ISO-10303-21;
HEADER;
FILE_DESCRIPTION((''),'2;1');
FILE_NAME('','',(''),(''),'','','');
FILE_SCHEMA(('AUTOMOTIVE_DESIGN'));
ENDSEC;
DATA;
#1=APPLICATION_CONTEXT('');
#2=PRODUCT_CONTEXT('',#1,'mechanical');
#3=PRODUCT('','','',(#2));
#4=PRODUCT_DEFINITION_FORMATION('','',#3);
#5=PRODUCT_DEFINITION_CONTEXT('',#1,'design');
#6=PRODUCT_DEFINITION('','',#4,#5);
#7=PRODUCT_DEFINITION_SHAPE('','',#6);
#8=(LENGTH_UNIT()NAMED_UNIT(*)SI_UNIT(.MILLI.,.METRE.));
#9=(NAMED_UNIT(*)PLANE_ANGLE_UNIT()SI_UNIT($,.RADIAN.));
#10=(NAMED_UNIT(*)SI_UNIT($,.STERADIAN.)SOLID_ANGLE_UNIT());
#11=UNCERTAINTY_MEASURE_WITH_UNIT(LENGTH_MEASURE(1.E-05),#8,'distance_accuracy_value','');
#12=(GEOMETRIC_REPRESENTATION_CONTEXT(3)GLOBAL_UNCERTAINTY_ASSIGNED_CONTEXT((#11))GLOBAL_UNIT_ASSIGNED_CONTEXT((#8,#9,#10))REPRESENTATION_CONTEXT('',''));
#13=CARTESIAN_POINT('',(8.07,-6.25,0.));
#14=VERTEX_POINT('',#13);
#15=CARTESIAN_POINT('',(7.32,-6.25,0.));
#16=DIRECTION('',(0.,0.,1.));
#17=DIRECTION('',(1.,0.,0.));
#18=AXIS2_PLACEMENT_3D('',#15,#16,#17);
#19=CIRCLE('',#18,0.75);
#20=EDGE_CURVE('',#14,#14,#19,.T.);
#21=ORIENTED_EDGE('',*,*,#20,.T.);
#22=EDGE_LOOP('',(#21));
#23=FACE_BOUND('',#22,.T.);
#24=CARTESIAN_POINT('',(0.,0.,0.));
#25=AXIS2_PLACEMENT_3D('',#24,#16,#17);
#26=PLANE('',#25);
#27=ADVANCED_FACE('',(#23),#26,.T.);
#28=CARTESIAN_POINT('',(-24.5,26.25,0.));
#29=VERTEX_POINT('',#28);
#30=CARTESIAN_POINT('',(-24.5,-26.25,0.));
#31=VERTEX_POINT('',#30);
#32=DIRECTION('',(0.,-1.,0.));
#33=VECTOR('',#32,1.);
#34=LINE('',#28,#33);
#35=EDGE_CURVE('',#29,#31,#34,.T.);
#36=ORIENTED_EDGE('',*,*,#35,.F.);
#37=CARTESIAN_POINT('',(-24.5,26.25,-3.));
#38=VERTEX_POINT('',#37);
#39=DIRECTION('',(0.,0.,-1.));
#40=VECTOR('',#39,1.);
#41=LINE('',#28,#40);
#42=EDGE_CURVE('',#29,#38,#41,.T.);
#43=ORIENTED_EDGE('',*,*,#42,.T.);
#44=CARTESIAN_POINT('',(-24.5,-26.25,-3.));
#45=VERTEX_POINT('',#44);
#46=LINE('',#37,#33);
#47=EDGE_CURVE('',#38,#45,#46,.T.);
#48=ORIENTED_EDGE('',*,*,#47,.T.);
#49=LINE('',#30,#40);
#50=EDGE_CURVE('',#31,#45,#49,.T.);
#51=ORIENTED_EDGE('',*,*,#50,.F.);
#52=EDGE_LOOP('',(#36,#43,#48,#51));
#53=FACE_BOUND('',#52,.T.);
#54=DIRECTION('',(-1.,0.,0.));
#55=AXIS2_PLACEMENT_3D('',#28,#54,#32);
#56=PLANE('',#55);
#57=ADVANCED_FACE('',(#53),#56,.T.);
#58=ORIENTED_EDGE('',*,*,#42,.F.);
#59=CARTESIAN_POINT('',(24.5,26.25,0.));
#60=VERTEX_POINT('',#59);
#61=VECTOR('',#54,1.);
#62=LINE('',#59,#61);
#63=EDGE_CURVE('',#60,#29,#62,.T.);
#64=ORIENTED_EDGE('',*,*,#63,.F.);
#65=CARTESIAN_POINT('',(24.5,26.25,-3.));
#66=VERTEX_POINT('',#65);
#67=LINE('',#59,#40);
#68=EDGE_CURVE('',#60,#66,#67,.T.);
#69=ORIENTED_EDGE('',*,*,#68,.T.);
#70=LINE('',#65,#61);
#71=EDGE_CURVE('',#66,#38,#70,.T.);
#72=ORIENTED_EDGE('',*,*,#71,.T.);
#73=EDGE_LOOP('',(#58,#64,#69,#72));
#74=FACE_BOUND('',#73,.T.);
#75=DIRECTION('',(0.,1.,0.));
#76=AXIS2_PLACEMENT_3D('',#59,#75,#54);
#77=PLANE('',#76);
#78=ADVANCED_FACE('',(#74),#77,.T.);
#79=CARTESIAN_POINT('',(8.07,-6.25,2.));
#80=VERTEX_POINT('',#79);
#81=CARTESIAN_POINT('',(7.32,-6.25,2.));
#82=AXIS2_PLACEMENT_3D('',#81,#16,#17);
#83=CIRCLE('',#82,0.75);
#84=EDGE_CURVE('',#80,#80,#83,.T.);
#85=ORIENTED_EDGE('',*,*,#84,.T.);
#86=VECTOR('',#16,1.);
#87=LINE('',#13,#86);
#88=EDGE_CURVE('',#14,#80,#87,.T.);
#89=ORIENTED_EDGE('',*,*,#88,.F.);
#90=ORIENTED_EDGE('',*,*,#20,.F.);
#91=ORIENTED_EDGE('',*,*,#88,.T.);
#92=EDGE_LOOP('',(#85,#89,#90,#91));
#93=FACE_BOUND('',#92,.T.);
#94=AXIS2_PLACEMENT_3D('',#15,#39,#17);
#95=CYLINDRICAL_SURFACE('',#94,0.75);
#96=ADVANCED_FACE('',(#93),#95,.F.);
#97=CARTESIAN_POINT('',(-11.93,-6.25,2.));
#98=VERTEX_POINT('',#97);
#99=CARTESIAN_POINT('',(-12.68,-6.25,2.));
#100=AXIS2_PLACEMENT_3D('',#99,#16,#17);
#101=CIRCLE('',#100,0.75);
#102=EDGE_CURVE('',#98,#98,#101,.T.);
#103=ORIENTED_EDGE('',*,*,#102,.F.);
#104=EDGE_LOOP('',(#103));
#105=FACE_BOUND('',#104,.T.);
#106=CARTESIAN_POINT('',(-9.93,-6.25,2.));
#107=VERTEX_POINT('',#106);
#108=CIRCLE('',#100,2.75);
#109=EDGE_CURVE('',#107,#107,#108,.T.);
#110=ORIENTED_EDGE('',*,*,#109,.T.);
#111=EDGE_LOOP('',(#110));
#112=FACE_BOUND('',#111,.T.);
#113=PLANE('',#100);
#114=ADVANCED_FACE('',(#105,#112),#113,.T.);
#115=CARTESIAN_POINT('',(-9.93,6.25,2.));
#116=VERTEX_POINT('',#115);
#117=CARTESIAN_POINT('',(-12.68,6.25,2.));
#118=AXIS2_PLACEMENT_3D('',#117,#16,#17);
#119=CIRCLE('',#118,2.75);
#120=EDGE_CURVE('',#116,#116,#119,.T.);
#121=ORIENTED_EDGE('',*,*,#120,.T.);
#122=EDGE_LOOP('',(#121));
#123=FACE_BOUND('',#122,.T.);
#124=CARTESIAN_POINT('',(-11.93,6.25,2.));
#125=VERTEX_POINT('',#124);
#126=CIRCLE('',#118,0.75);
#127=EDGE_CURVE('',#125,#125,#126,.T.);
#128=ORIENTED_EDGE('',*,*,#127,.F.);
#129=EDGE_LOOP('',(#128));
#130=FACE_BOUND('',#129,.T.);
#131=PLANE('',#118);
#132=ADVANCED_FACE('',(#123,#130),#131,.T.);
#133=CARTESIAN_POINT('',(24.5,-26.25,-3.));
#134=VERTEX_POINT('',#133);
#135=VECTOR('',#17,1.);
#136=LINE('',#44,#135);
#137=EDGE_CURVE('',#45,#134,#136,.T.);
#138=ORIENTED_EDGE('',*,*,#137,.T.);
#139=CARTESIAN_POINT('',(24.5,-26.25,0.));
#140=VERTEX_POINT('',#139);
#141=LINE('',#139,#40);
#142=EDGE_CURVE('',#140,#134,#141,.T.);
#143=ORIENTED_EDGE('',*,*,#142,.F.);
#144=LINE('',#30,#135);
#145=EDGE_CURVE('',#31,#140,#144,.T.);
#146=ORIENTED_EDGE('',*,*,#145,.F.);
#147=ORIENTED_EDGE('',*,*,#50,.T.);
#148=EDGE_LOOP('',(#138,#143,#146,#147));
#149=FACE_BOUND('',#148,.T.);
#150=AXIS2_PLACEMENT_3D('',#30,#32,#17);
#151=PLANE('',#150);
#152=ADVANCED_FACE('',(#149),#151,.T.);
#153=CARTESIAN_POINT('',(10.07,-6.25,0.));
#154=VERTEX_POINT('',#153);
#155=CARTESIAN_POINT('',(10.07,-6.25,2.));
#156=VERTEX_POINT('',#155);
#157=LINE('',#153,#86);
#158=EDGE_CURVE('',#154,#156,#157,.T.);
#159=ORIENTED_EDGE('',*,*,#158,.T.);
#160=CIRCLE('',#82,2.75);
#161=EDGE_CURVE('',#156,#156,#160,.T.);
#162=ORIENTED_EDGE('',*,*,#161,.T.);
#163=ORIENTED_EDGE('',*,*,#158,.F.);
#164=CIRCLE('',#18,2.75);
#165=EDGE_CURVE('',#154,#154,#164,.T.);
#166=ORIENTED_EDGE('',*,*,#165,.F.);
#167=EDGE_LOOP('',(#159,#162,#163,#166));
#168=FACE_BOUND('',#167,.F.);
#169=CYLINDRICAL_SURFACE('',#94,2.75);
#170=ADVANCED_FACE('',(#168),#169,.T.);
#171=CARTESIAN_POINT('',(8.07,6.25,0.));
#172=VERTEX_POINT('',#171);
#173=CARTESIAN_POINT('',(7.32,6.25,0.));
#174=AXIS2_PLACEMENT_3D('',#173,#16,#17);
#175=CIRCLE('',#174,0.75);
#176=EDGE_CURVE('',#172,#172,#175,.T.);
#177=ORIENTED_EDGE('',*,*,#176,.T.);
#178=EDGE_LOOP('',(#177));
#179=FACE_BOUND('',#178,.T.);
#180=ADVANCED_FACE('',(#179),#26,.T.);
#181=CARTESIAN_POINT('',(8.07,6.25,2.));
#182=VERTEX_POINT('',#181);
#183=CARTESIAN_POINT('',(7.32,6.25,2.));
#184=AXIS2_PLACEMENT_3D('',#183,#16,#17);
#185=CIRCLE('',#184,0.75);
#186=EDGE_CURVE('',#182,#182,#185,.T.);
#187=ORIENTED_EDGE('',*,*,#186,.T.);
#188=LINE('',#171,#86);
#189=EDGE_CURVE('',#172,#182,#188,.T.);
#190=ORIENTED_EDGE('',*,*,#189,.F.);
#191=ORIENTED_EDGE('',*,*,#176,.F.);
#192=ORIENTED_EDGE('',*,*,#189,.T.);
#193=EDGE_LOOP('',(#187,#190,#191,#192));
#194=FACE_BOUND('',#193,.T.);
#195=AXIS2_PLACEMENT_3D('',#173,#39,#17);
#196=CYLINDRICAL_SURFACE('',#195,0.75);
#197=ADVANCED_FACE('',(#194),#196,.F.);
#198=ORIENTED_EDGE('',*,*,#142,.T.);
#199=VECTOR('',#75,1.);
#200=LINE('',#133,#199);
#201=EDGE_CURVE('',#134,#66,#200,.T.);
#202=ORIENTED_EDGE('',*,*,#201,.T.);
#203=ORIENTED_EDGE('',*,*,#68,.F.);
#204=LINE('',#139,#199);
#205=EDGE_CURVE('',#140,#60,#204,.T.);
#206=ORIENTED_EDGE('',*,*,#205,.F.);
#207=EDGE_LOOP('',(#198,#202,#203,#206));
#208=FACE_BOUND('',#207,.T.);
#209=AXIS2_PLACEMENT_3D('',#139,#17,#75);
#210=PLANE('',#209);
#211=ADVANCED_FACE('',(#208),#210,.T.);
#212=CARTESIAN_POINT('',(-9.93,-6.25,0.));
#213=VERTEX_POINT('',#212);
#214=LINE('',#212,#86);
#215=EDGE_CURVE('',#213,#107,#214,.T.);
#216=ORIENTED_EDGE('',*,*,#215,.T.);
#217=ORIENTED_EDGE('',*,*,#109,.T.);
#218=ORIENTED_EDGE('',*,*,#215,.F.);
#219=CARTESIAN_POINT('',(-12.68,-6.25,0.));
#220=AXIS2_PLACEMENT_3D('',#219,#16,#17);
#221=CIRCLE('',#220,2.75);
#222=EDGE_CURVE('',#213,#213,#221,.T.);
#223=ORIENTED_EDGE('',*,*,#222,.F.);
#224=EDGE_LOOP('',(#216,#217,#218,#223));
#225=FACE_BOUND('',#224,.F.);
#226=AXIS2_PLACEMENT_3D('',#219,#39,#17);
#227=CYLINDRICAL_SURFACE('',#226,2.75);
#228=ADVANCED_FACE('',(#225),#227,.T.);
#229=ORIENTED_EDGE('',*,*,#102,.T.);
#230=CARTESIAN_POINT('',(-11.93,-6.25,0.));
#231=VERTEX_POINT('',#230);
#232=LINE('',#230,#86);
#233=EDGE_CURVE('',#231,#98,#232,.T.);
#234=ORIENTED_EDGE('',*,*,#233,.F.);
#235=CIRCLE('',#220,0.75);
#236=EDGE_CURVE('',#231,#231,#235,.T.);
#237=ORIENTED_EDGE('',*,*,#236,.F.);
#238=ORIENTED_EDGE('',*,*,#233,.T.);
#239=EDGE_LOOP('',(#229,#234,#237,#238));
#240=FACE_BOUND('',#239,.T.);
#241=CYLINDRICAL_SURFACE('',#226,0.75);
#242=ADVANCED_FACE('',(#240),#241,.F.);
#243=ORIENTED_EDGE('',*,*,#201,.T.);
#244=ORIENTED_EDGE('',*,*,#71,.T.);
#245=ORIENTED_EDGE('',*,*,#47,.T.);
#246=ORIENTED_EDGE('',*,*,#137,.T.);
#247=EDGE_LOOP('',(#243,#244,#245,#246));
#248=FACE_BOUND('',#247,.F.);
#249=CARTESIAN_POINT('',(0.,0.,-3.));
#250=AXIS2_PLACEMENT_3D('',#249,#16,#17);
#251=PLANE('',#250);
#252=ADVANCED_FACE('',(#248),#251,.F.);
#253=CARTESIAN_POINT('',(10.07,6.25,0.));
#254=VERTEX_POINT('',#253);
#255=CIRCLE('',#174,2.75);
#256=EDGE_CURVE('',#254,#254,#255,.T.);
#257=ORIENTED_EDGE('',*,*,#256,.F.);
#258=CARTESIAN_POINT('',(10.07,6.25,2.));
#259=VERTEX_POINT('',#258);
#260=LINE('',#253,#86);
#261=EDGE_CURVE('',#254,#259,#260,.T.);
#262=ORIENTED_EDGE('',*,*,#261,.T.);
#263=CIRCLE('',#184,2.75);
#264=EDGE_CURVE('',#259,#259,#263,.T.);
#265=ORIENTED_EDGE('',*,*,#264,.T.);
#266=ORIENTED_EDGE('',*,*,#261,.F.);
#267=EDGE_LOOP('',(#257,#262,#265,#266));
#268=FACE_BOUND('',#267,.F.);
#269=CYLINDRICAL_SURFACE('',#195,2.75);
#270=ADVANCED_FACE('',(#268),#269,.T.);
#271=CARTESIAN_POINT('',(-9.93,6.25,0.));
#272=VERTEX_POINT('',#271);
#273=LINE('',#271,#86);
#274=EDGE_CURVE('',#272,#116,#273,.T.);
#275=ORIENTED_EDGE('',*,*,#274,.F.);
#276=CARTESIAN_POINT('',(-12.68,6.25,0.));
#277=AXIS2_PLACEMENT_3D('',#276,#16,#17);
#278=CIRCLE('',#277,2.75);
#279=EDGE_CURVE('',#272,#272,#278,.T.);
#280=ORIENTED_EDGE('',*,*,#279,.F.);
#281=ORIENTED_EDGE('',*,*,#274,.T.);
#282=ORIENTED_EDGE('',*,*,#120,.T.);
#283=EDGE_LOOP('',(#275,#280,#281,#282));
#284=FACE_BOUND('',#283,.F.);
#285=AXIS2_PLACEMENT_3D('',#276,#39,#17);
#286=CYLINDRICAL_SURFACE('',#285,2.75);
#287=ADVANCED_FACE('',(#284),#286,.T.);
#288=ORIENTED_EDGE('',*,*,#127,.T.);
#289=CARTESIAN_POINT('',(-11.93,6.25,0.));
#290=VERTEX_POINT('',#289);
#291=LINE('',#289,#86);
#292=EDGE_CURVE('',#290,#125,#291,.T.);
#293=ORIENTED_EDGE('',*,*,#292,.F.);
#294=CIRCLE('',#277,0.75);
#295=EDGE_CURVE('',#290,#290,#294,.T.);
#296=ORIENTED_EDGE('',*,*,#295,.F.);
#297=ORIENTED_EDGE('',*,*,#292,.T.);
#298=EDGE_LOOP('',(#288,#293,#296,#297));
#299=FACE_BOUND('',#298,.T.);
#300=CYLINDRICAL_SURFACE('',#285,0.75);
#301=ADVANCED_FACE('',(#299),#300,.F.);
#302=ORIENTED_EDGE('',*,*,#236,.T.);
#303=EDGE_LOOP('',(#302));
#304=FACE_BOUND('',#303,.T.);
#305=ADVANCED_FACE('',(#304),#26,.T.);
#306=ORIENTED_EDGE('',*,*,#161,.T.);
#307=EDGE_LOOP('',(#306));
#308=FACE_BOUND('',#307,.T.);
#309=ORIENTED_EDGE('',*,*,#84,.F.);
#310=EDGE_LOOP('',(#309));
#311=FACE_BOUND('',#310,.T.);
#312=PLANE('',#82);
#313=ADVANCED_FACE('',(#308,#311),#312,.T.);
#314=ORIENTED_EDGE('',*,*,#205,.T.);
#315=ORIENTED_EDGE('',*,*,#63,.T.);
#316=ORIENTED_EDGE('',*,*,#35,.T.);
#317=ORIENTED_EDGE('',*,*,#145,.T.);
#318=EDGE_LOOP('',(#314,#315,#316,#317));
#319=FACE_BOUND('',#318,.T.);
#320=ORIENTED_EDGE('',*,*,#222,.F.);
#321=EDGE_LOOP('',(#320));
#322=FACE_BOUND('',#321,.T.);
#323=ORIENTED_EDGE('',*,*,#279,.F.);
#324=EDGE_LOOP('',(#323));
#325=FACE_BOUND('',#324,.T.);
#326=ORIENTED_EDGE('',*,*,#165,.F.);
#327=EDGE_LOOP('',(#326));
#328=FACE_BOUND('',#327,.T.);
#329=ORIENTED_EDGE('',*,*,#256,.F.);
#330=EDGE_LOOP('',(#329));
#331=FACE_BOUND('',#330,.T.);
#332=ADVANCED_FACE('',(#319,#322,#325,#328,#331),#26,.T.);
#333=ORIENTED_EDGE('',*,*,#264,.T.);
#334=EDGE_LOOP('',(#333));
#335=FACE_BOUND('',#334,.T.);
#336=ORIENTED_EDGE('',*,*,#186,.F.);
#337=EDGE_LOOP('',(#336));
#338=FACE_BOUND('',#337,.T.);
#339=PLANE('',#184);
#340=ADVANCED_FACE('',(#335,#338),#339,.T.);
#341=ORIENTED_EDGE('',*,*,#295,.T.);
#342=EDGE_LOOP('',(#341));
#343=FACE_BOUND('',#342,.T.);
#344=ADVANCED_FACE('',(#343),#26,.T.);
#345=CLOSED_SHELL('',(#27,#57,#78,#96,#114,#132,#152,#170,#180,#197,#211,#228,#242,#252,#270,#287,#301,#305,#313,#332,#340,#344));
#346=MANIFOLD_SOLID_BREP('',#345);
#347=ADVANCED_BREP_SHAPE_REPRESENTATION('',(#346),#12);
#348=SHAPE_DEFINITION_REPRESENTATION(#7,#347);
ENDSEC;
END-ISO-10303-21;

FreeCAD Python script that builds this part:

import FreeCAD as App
import Part
import Sketcher

V = App.Vector

doc = App.newDocument("Part")
body = doc.addObject("PartDesign::Body", "Body")

# Sketch on XY plane
sketch1 = doc.addObject("Sketcher::SketchObject", "Sketch")
body.addObject(sketch1)
sketch1.AttachmentSupport = (doc.XY_Plane, [""])
sketch1.MapMode = "FlatFace"
sketch1.addGeometry([
    Part.LineSegment(V(24, -26, 0), V(24, 26, 0)),
    Part.LineSegment(V(24, 26, 0), V(-24, 26, 0)),
    Part.LineSegment(V(-24, 26, 0), V(-24, -26, 0)),
    Part.LineSegment(V(-24, -26, 0), V(24, -26, 0)),
], False)
sketch1.addConstraint([
    Sketcher.Constraint("Coincident", 0, 2, 1, 1),
    Sketcher.Constraint("Coincident", 1, 2, 2, 1),
    Sketcher.Constraint("Coincident", 2, 2, 3, 1),
    Sketcher.Constraint("Coincident", 3, 2, 0, 1),
    Sketcher.Constraint("Vertical", 0),
    Sketcher.Constraint("Horizontal", 1),
    Sketcher.Constraint("Vertical", 2),
    Sketcher.Constraint("Horizontal", 3),
    Sketcher.Constraint("Symmetric", 0, 2, 2, 2, -1, 1),
    Sketcher.Constraint("DistanceX", 1, 2, 1, 1, 49.0),
    Sketcher.Constraint("DistanceY", 0, 1, 0, 2, 52.5),
])
pad1 = doc.addObject("PartDesign::Pad", "Pad")
body.addObject(pad1)
pad1.Profile = sketch1
pad1.Length = 3
pad1.Reversed = True

# Sketch on XY plane
sketch2 = doc.addObject("Sketcher::SketchObject", "Sketch001")
body.addObject(sketch2)
sketch2.AttachmentSupport = (doc.XY_Plane, [""])
sketch2.MapMode = "FlatFace"
sketch2.addGeometry([
    Part.Circle(V(-12.7, 6.2, 0), V(0, 0, 1), 2.8),  # 0
    Part.Circle(V(-12.7, 6.2, 0), V(0, 0, 1), 0.8),  # 1
    Part.Circle(V(7.3, 6.2, 0), V(0, 0, 1), 2.8),  # 2
    Part.Circle(V(7.3, 6.2, 0), V(0, 0, 1), 0.8),  # 3
    Part.Circle(V(7.3, -6.2, 0), V(0, 0, 1), 2.8),  # 4
    Part.Circle(V(7.3, -6.2, 0), V(0, 0, 1), 0.8),  # 5
    Part.Circle(V(-12.7, -6.2, 0), V(0, 0, 1), 2.8),  # 6
    Part.Circle(V(-12.7, -6.2, 0), V(0, 0, 1), 0.8),  # 7
], False)
sketch2.addConstraint([
    Sketcher.Constraint("Coincident", 1, 3, 0, 3),
    Sketcher.Constraint("Coincident", 3, 3, 2, 3),
    Sketcher.Constraint("Coincident", 5, 3, 4, 3),
    Sketcher.Constraint("Coincident", 7, 3, 6, 3),
    Sketcher.Constraint("Equal", 0, 2),
    Sketcher.Constraint("Equal", 1, 3),
    Sketcher.Constraint("Equal", 2, 4),
    Sketcher.Constraint("Equal", 3, 5),
    Sketcher.Constraint("Equal", 4, 6),
    Sketcher.Constraint("Equal", 5, 7),
    Sketcher.Constraint("Symmetric", 2, 3, 4, 3, -1),
    Sketcher.Constraint("Symmetric", 0, 3, 6, 3, -1),
    Sketcher.Constraint("Horizontal", 1, 3, 2, 3),
    Sketcher.Constraint("Diameter", 0, 5.5),
    Sketcher.Constraint("Diameter", 1, 1.5),
    Sketcher.Constraint("DistanceX", 0, 3, 2, 3, 20.0),
    Sketcher.Constraint("DistanceY", 4, 3, 2, 3, 12.5),
    Sketcher.Constraint("DistanceX", 0, 3, -1, 1, 12.68),
])
pad2 = doc.addObject("PartDesign::Pad", "Pad001")
body.addObject(pad2)
pad2.Profile = sketch2
pad2.Length = 2

doc.recompute()
